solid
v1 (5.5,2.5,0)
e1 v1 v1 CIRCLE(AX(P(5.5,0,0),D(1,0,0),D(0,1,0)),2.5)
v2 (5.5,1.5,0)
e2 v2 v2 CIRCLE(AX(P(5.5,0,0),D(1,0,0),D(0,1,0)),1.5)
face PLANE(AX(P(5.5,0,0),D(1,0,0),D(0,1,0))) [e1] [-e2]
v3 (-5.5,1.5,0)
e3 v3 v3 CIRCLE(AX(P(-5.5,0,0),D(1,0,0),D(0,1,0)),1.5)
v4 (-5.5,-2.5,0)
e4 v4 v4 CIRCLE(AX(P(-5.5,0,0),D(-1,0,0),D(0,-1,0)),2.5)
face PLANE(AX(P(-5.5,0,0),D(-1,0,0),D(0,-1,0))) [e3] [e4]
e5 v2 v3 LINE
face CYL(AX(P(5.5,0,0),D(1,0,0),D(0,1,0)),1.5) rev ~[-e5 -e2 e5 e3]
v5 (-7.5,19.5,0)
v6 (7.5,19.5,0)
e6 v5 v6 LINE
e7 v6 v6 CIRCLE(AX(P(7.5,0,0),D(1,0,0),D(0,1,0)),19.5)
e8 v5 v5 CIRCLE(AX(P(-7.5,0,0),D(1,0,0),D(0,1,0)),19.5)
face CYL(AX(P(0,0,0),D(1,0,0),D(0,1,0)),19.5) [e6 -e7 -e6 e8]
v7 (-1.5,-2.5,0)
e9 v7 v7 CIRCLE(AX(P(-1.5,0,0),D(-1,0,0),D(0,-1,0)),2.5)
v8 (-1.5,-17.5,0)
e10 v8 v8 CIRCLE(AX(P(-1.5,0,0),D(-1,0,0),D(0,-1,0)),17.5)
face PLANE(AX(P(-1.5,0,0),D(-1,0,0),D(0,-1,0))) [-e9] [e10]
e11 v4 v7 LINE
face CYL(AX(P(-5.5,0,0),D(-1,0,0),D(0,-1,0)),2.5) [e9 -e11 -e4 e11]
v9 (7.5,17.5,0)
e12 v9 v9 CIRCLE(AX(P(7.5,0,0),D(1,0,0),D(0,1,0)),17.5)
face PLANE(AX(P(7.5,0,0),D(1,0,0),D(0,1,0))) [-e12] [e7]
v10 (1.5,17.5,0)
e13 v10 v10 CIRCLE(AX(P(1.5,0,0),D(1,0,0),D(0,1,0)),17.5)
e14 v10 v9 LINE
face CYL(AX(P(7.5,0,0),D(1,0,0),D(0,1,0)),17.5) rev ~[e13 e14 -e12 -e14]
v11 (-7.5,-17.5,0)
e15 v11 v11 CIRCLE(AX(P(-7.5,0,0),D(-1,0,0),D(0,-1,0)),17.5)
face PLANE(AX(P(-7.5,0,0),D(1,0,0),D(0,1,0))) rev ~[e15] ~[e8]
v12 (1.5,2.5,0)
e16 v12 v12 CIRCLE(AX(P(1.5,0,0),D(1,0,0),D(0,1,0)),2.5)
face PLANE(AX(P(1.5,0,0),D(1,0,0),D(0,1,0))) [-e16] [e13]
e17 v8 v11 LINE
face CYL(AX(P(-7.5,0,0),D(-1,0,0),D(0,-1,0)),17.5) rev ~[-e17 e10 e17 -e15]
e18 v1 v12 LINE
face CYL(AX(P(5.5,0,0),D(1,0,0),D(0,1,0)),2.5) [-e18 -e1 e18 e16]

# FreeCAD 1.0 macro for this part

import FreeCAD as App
import Part
import Sketcher

V = App.Vector

doc = App.newDocument("Part")
body = doc.addObject("PartDesign::Body", "Body")

# Sketch on YZ plane
sketch1 = body.newObject("Sketcher::SketchObject", "Sketch")
sketch1.AttachmentSupport = (doc.getObject("YZ_Plane"), [""])
sketch1.MapMode = "FlatFace"
sketch1.addGeometry(Part.Circle(V(0, 0, 0), V(0, 0, 1), 19.5), False)
sketch1.addConstraint([
    Sketcher.Constraint("Coincident", 0, 3, -1, 1),
    Sketcher.Constraint("Diameter", 0, 39.0),
])
pad1 = body.newObject("PartDesign::Pad", "Pad")
pad1.Profile = sketch1
pad1.Length = 15
pad1.Midplane = True

# Sketch on YZ plane
sketch2 = body.newObject("Sketcher::SketchObject", "Sketch001")
sketch2.AttachmentSupport = (doc.getObject("YZ_Plane"), [""])
sketch2.MapMode = "FlatFace"
sketch2.AttachmentOffset = App.Placement(V(0, 0, -7.5), App.Rotation())
sketch2.addGeometry(Part.Circle(V(0, 0, 0), V(0, 0, 1), 17.5), False)
sketch2.addConstraint([
    Sketcher.Constraint("Coincident", 0, 3, -1, 1),
    Sketcher.Constraint("Diameter", 0, 35.0),
])
pocket1 = body.newObject("PartDesign::Pocket", "Pocket")
pocket1.Profile = sketch2
pocket1.Length = 2
pocket1.Reversed = True

# Sketch on YZ plane
sketch3 = body.newObject("Sketcher::SketchObject", "Sketch002")
sketch3.AttachmentSupport = (doc.getObject("YZ_Plane"), [""])
sketch3.MapMode = "FlatFace"
sketch3.AttachmentOffset = App.Placement(V(0, 0, 7.5), App.Rotation())
sketch3.addGeometry(Part.Circle(V(0, 0, 0), V(0, 0, 1), 17.5), False)
sketch3.addConstraint([
    Sketcher.Constraint("Coincident", 0, 3, -1, 1),
    Sketcher.Constraint("Diameter", 0, 35.0),
])
pocket2 = body.newObject("PartDesign::Pocket", "Pocket001")
pocket2.Profile = sketch3
pocket2.Length = 2

# Sketch on YZ plane
sketch4 = body.newObject("Sketcher::SketchObject", "Sketch003")
sketch4.AttachmentSupport = (doc.getObject("YZ_Plane"), [""])
sketch4.MapMode = "FlatFace"
sketch4.AttachmentOffset = App.Placement(V(0, 0, 5.5), App.Rotation())
sketch4.addGeometry(Part.Circle(V(0, 0, 0), V(0, 0, 1), 1.5), False)
sketch4.addConstraint([
    Sketcher.Constraint("Coincident", 0, 3, -1, 1),
    Sketcher.Constraint("Diameter", 0, 3.0),
])
pocket3 = body.newObject("PartDesign::Pocket", "Pocket002")
pocket3.Profile = sketch4
pocket3.Length = 25

# Sketch on YZ plane
sketch5 = body.newObject("Sketcher::SketchObject", "Sketch004")
sketch5.AttachmentSupport = (doc.getObject("YZ_Plane"), [""])
sketch5.MapMode = "FlatFace"
sketch5.AttachmentOffset = App.Placement(V(0, 0, 5.5), App.Rotation())
sketch5.addGeometry([
    Part.Circle(V(0, 0, 0), V(0, 0, 1), 17.5),
    Part.Circle(V(0, 0, 0), V(0, 0, 1), 2.5),
], False)
sketch5.addConstraint([
    Sketcher.Constraint("Coincident", 0, 3, -1, 1),
    Sketcher.Constraint("Coincident", 1, 3, -1, 1),
    Sketcher.Constraint("Diameter", 0, 35.0),
    Sketcher.Constraint("Diameter", 1, 5.0),
])
pocket4 = body.newObject("PartDesign::Pocket", "Pocket003")
pocket4.Profile = sketch5
pocket4.Length = 4

# Sketch on YZ plane
sketch6 = body.newObject("Sketcher::SketchObject", "Sketch005")
sketch6.AttachmentSupport = (doc.getObject("YZ_Plane"), [""])
sketch6.MapMode = "FlatFace"
sketch6.AttachmentOffset = App.Placement(V(0, 0, -5.5), App.Rotation())
sketch6.addGeometry([
    Part.Circle(V(0, 0, 0), V(0, 0, 1), 17.5),
    Part.Circle(V(0, 0, 0), V(0, 0, 1), 2.5),
], False)
sketch6.addConstraint([
    Sketcher.Constraint("Coincident", 0, 3, -1, 1),
    Sketcher.Constraint("Coincident", 1, 3, -1, 1),
    Sketcher.Constraint("Diameter", 0, 35.0),
    Sketcher.Constraint("Diameter", 1, 5.0),
])
pocket5 = body.newObject("PartDesign::Pocket", "Pocket004")
pocket5.Profile = sketch6
pocket5.Length = 4
pocket5.Reversed = True

doc.recompute()
